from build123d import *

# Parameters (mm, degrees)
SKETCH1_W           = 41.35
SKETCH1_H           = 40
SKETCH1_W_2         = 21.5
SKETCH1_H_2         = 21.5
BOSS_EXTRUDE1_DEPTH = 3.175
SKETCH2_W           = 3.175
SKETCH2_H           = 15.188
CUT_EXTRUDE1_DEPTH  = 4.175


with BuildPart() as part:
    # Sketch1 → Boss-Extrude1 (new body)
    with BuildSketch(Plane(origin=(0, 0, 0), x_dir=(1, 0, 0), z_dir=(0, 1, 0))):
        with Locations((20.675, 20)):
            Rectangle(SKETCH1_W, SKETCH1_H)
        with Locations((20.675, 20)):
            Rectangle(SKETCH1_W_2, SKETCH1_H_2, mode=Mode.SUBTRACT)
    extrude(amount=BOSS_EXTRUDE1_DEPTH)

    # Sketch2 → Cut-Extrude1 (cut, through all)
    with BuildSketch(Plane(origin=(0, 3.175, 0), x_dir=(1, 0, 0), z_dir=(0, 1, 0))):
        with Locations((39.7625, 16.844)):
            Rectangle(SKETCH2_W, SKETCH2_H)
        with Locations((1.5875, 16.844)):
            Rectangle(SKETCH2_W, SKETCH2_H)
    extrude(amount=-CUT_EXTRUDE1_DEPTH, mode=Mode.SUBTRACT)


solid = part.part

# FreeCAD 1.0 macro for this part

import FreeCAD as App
import Part
import Sketcher
Q = App.Units.Quantity


def add_polygon(sketch, points):
    """Adds a closed chain of lines whose ends are joined by coincident constraints."""
    first, n = sketch.GeometryCount, len(points)
    for a, b in zip(points, points[1:] + points[:1]):
        sketch.addGeometry(Part.LineSegment(App.Vector(*a, 0), App.Vector(*b, 0)), False)
    for i in range(n):
        sketch.addConstraint(Sketcher.Constraint("Coincident", first + i, 2, first + (i + 1) % n, 1))

doc = App.newDocument("Part")
body = doc.addObject("PartDesign::Body", "Body")

sketch1 = body.newObject("Sketcher::SketchObject", "Sketch")
sketch1.AttachmentSupport = (doc.getObject("XZ_Plane"), [""])
sketch1.MapMode = "FlatFace"
add_polygon(sketch1, [(0, -40), (0, 0), (41, 0), (41, -40)])
add_polygon(sketch1, [(31, -9), (10, -9), (10, -31), (31, -31)])
sketch1.addConstraint(Sketcher.Constraint("Vertical", 0))
sketch1.addConstraint(Sketcher.Constraint("Horizontal", 1))
sketch1.addConstraint(Sketcher.Constraint("Vertical", 2))
sketch1.addConstraint(Sketcher.Constraint("Horizontal", 3))
sketch1.addConstraint(Sketcher.Constraint("Horizontal", 4))
sketch1.addConstraint(Sketcher.Constraint("Vertical", 5))
sketch1.addConstraint(Sketcher.Constraint("Horizontal", 6))
sketch1.addConstraint(Sketcher.Constraint("Vertical", 7))
sketch1.addConstraint(Sketcher.Constraint("Coincident", 0, 2, -1, 1))
sketch1.addConstraint(Sketcher.Constraint("Equal", 6, 5))
sketch1.addConstraint(Sketcher.Constraint("DistanceY", 0, 1, 0, 2, Q("40 mm")))
sketch1.addConstraint(Sketcher.Constraint("DistanceX", 4, 2, 4, 1, Q("21.5 mm")))
sketch1.addConstraint(Sketcher.Constraint("DistanceX", 1, 1, 1, 2, Q("41.35 mm")))
sketch1.addConstraint(Sketcher.Constraint("DistanceY", 4, 2, -1, 1, Q("9.25 mm")))
sketch1.addConstraint(Sketcher.Constraint("DistanceX", -1, 1, 4, 2, Q("9.925 mm")))
pad1 = body.newObject("PartDesign::Pad", "Pad")
pad1.Profile = sketch1
pad1.Length = 3.175
pad1.Reversed = True

sketch2 = body.newObject("Sketcher::SketchObject", "Sketch001")
sketch2.AttachmentSupport = (doc.getObject("XZ_Plane"), [""])
sketch2.MapMode = "FlatFace"
sketch2.AttachmentOffset = App.Placement(App.Vector(0, 0, -3.175), App.Rotation())
add_polygon(sketch2, [(38.2, -24.4), (38.2, -9.2), (41.4, -9.2), (41.4, -24.4)])
add_polygon(sketch2, [(0, -24.4), (0, -9.2), (3.2, -9.2), (3.2, -24.4)])
sketch2.addConstraint(Sketcher.Constraint("Vertical", 0))
sketch2.addConstraint(Sketcher.Constraint("Horizontal", 1))
sketch2.addConstraint(Sketcher.Constraint("Vertical", 2))
sketch2.addConstraint(Sketcher.Constraint("Horizontal", 3))
sketch2.addConstraint(Sketcher.Constraint("Vertical", 4))
sketch2.addConstraint(Sketcher.Constraint("Horizontal", 5))
sketch2.addConstraint(Sketcher.Constraint("Vertical", 6))
sketch2.addConstraint(Sketcher.Constraint("Horizontal", 7))
sketch2.addConstraint(Sketcher.Constraint("PointOnObject", 4, 2, -2))
sketch2.addConstraint(Sketcher.Constraint("Horizontal", 1, 2, 4, 2))
sketch2.addConstraint(Sketcher.Constraint("Horizontal", 3, 2, 6, 2))
sketch2.addConstraint(Sketcher.Constraint("Equal", 3, 5))
sketch2.addConstraint(Sketcher.Constraint("DistanceX", 5, 2, 0, 2, Q("35 mm")))
sketch2.addConstraint(Sketcher.Constraint("DistanceX", 1, 1, 1, 2, Q("3.175 mm")))
sketch2.addConstraint(Sketcher.Constraint("DistanceY", 0, 1, 0, 2, Q("15.188 mm")))
sketch2.addConstraint(Sketcher.Constraint("DistanceY", 0, 2, -1, 1, Q("9.25 mm")))
pocket1 = body.newObject("PartDesign::Pocket", "Pocket")
pocket1.Profile = sketch2
pocket1.Type = "ThroughAll"
pocket1.Reversed = True

doc.recompute()
